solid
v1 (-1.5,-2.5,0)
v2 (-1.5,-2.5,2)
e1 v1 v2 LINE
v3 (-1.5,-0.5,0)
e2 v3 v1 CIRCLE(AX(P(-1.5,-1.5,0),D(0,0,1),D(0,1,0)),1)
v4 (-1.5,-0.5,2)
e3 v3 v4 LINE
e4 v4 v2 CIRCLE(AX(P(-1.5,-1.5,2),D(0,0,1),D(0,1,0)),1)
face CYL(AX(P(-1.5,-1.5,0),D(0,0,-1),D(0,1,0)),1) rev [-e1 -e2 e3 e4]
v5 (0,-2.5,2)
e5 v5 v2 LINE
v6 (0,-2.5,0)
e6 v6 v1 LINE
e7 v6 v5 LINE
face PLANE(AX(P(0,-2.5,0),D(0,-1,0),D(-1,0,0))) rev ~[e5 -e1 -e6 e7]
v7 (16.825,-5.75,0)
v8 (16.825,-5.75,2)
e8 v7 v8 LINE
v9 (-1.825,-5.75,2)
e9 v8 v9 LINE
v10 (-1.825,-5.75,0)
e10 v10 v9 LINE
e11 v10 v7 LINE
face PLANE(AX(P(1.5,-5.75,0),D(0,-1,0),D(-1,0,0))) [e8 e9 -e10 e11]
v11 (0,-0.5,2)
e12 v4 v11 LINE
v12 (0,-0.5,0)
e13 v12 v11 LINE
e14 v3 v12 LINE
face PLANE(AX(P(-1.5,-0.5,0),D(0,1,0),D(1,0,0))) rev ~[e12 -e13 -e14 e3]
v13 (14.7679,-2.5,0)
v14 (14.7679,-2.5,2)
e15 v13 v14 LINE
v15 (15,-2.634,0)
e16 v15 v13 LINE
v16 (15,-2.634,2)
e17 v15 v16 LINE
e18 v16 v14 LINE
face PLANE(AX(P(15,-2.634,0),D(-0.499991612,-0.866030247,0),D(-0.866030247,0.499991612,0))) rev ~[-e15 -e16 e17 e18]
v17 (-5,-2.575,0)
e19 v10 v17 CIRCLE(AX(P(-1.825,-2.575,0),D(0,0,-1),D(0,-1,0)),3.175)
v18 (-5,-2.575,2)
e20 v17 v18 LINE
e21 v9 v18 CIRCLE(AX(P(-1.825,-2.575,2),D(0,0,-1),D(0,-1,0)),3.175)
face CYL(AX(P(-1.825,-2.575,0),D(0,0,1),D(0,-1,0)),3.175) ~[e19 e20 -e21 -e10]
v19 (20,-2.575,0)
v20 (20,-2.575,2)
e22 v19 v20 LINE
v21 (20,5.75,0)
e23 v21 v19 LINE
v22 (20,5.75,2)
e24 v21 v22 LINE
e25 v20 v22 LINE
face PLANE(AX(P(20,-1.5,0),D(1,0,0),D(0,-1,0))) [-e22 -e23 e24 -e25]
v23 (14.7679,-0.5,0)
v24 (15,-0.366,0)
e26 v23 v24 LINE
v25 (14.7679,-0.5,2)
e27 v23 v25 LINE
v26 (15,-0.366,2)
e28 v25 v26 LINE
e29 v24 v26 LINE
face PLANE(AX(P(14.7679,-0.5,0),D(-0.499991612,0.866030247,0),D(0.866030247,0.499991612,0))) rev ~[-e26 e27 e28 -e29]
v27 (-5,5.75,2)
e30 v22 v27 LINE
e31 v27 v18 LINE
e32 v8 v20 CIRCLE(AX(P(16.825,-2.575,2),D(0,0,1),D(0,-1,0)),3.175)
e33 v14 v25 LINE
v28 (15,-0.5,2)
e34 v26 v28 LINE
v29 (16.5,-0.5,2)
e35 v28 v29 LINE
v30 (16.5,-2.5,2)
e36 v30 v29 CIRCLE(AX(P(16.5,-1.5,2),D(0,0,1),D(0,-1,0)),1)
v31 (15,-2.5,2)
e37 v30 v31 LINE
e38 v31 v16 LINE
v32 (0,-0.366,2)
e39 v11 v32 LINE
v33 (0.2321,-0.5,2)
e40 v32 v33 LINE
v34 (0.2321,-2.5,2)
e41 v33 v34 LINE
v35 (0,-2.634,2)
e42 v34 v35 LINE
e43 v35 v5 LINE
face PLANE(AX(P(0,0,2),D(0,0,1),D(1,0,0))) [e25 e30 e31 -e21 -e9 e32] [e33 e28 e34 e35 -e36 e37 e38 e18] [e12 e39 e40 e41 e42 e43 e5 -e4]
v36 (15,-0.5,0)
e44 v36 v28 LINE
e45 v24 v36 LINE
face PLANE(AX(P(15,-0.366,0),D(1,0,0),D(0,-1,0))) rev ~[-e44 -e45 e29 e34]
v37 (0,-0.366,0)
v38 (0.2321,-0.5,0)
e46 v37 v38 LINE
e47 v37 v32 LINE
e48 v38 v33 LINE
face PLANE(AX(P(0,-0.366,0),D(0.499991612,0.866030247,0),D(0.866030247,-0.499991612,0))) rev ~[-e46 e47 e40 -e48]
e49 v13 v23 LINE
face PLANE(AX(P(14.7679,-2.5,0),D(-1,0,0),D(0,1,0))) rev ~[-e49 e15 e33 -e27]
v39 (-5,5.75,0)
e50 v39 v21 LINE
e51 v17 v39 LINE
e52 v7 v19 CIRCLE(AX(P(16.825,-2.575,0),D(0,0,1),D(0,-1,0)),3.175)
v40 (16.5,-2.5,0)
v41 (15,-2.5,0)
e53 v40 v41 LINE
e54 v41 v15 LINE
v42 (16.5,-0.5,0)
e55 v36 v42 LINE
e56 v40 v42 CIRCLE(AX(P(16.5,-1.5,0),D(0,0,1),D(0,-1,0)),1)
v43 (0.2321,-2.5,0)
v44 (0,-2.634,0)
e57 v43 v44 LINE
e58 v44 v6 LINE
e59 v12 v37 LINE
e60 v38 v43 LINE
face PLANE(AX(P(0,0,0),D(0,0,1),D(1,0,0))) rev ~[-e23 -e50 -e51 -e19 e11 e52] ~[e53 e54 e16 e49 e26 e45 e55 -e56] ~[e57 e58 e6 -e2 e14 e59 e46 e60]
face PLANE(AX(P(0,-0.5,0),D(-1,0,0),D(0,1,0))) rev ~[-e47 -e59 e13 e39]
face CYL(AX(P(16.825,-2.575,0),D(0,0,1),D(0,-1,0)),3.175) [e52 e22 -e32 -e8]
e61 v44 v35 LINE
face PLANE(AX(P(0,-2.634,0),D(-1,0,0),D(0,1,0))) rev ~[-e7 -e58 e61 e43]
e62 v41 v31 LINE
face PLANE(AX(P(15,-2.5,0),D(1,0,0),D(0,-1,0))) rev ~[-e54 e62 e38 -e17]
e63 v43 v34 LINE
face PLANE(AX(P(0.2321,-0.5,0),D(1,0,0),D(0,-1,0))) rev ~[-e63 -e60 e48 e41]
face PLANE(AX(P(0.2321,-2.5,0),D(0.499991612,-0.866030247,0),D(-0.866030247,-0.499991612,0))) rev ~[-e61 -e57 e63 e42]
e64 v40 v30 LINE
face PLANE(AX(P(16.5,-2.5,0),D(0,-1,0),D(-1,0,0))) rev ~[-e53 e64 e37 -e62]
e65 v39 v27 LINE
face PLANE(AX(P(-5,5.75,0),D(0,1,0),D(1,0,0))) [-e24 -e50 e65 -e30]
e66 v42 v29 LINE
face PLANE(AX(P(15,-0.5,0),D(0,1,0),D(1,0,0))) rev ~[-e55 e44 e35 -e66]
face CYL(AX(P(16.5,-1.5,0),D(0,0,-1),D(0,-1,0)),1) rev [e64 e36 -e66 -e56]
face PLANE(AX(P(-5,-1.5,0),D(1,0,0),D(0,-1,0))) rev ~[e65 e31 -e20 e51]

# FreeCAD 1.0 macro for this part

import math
import FreeCAD as App
import Part
import Sketcher

V = App.Vector
Q = App.Units.Quantity


def edges_at(feature, points):
    """Names of the edges that pass closest to the given points."""
    edges = feature.Shape.Edges
    near = lambda p: min(range(len(edges)), key=lambda i: edges[i].distToShape(Part.Vertex(*p))[0])
    return sorted({f"Edge{near(p) + 1}" for p in points})


def add_polygon(sketch, points):
    """Adds a closed chain of lines whose ends are joined by coincident constraints."""
    first, n = sketch.GeometryCount, len(points)
    for a, b in zip(points, points[1:] + points[:1]):
        sketch.addGeometry(Part.LineSegment(App.Vector(*a, 0), App.Vector(*b, 0)), False)
    for i in range(n):
        sketch.addConstraint(Sketcher.Constraint("Coincident", first + i, 2, first + (i + 1) % n, 1))

doc = App.newDocument("Part")
body = doc.addObject("PartDesign::Body", "Body")

sketch1 = body.newObject("Sketcher::SketchObject", "Sketch")
sketch1.AttachmentSupport = (doc.getObject("XY_Plane"), [""])
sketch1.MapMode = "FlatFace"
add_polygon(sketch1, [(20, -5.75), (20, 5.75), (-5, 5.75), (-5, -5.75)])
sketch1.addGeometry(Part.LineSegment(V(0, -0.5, 0), V(0, -0.37, 0)), False)
sketch1.addGeometry(Part.LineSegment(V(0, -0.37, 0), V(0.23, -0.5, 0)), False)
sketch1.addGeometry(Part.LineSegment(V(0.23, -0.5, 0), V(0.23, -2.5, 0)), False)
sketch1.addGeometry(Part.LineSegment(V(0.23, -2.5, 0), V(0, -2.63, 0)), False)
sketch1.addGeometry(Part.LineSegment(V(0, -2.63, 0), V(0, -2.5, 0)), False)
sketch1.addGeometry(Part.LineSegment(V(0, -2.5, 0), V(-1.5, -2.5, 0)), False)
sketch1.addGeometry(Part.ArcOfCircle(Part.Circle(V(-1.5, -1.5, 0), V(0, 0, 1), 1), math.radians(90), math.radians(270)), False)
sketch1.addGeometry(Part.LineSegment(V(-1.5, -0.5, 0), V(0, -0.5, 0)), False)
sketch1.addGeometry(Part.LineSegment(V(15, -2.5, 0), V(15, -2.63, 0)), False)
sketch1.addGeometry(Part.LineSegment(V(15, -2.63, 0), V(14.77, -2.5, 0)), False)
sketch1.addGeometry(Part.LineSegment(V(14.77, -2.5, 0), V(14.77, -0.5, 0)), False)
sketch1.addGeometry(Part.LineSegment(V(14.77, -0.5, 0), V(15, -0.37, 0)), False)
sketch1.addGeometry(Part.LineSegment(V(15, -0.37, 0), V(15, -0.5, 0)), False)
sketch1.addGeometry(Part.LineSegment(V(15, -0.5, 0), V(16.5, -0.5, 0)), False)
sketch1.addGeometry(Part.ArcOfCircle(Part.Circle(V(16.5, -1.5, 0), V(0, 0, 1), 1), math.radians(-90), math.radians(90)), False)
sketch1.addGeometry(Part.LineSegment(V(16.5, -2.5, 0), V(15, -2.5, 0)), False)
sketch1.addConstraint(Sketcher.Constraint("Coincident", 4, 2, 5, 1))
sketch1.addConstraint(Sketcher.Constraint("Coincident", 5, 2, 6, 1))
sketch1.addConstraint(Sketcher.Constraint("Coincident", 6, 2, 7, 1))
sketch1.addConstraint(Sketcher.Constraint("Coincident", 7, 2, 8, 1))
sketch1.addConstraint(Sketcher.Constraint("Coincident", 8, 2, 9, 1))
sketch1.addConstraint(Sketcher.Constraint("Tangent", 9, 2, 10, 2))
sketch1.addConstraint(Sketcher.Constraint("Tangent", 10, 1, 11, 1))
sketch1.addConstraint(Sketcher.Constraint("Coincident", 11, 2, 4, 1))
sketch1.addConstraint(Sketcher.Constraint("Coincident", 12, 2, 13, 1))
sketch1.addConstraint(Sketcher.Constraint("Coincident", 13, 2, 14, 1))
sketch1.addConstraint(Sketcher.Constraint("Coincident", 14, 2, 15, 1))
sketch1.addConstraint(Sketcher.Constraint("Coincident", 15, 2, 16, 1))
sketch1.addConstraint(Sketcher.Constraint("Coincident", 16, 2, 17, 1))
sketch1.addConstraint(Sketcher.Constraint("Tangent", 17, 2, 18, 2))
sketch1.addConstraint(Sketcher.Constraint("Tangent", 18, 1, 19, 1))
sketch1.addConstraint(Sketcher.Constraint("Coincident", 19, 2, 12, 1))
sketch1.addConstraint(Sketcher.Constraint("Vertical", 0))
sketch1.addConstraint(Sketcher.Constraint("Horizontal", 1))
sketch1.addConstraint(Sketcher.Constraint("Vertical", 2))
sketch1.addConstraint(Sketcher.Constraint("Horizontal", 3))
sketch1.addConstraint(Sketcher.Constraint("Vertical", 4))
sketch1.addConstraint(Sketcher.Constraint("Vertical", 6))
sketch1.addConstraint(Sketcher.Constraint("Vertical", 8))
sketch1.addConstraint(Sketcher.Constraint("Horizontal", 9))
sketch1.addConstraint(Sketcher.Constraint("Horizontal", 11))
sketch1.addConstraint(Sketcher.Constraint("Vertical", 12))
sketch1.addConstraint(Sketcher.Constraint("Vertical", 14))
sketch1.addConstraint(Sketcher.Constraint("Vertical", 16))
sketch1.addConstraint(Sketcher.Constraint("Horizontal", 17))
sketch1.addConstraint(Sketcher.Constraint("Horizontal", 19))
sketch1.addConstraint(Sketcher.Constraint("Equal", 10, 18))
sketch1.addConstraint(Sketcher.Constraint("PointOnObject", 4, 2, -2))
sketch1.addConstraint(Sketcher.Constraint("PointOnObject", 7, 2, -2))
sketch1.addConstraint(Sketcher.Constraint("Parallel", 5, 13))
sketch1.addConstraint(Sketcher.Constraint("Parallel", 7, 15))
sketch1.addConstraint(Sketcher.Constraint("Horizontal", 10, 3, 18, 3))
sketch1.addConstraint(Sketcher.Constraint("Horizontal", 6, 2, 8, 2))
sketch1.addConstraint(Sketcher.Constraint("Horizontal", 5, 2, 10, 1))
sketch1.addConstraint(Sketcher.Constraint("Horizontal", 7, 2, 12, 2))
sketch1.addConstraint(Sketcher.Constraint("Horizontal", 9, 2, 13, 2))
sketch1.addConstraint(Sketcher.Constraint("Horizontal", 11, 2, 14, 2))
sketch1.addConstraint(Sketcher.Constraint("Horizontal", 4, 2, 15, 2))
sketch1.addConstraint(Sketcher.Constraint("Vertical", 12, 2, 15, 2))
sketch1.addConstraint(Sketcher.Constraint("Equal", 11, 17))
sketch1.addConstraint(Sketcher.Constraint("Radius", 10, Q("1 mm")))
sketch1.addConstraint(Sketcher.Constraint("DistanceX", 1, 2, 1, 1, Q("25 mm")))
sketch1.addConstraint(Sketcher.Constraint("Angle", 5, Q("-29.9994 deg")))
sketch1.addConstraint(Sketcher.Constraint("DistanceX", 9, 2, 9, 1, Q("1.5 mm")))
sketch1.addConstraint(Sketcher.Constraint("DistanceY", 0, 1, 0, 2, Q("11.5 mm")))
sketch1.addConstraint(Sketcher.Constraint("DistanceX", -1, 1, 0, 2, Q("20 mm")))
sketch1.addConstraint(Sketcher.Constraint("DistanceX", -1, 1, 12, 2, Q("15 mm")))
sketch1.addConstraint(Sketcher.Constraint("DistanceY", 10, 3, -1, 1, Q("1.5 mm")))
sketch1.addConstraint(Sketcher.Constraint("DistanceY", 4, 1, 4, 2, Q("0.134 mm")))
sketch1.addConstraint(Sketcher.Constraint("DistanceY", -1, 1, 0, 2, Q("5.75 mm")))
pad1 = body.newObject("PartDesign::Pad", "Pad")
pad1.Profile = sketch1
pad1.Length = 2
doc.recompute()

fillet = body.newObject("PartDesign::Fillet", "Fillet")
fillet.Base = (pad1, edges_at(pad1, [(-5, -5.75, 1), (20, -5.75, 1)]))
fillet.Radius = 3.175

doc.recompute()
